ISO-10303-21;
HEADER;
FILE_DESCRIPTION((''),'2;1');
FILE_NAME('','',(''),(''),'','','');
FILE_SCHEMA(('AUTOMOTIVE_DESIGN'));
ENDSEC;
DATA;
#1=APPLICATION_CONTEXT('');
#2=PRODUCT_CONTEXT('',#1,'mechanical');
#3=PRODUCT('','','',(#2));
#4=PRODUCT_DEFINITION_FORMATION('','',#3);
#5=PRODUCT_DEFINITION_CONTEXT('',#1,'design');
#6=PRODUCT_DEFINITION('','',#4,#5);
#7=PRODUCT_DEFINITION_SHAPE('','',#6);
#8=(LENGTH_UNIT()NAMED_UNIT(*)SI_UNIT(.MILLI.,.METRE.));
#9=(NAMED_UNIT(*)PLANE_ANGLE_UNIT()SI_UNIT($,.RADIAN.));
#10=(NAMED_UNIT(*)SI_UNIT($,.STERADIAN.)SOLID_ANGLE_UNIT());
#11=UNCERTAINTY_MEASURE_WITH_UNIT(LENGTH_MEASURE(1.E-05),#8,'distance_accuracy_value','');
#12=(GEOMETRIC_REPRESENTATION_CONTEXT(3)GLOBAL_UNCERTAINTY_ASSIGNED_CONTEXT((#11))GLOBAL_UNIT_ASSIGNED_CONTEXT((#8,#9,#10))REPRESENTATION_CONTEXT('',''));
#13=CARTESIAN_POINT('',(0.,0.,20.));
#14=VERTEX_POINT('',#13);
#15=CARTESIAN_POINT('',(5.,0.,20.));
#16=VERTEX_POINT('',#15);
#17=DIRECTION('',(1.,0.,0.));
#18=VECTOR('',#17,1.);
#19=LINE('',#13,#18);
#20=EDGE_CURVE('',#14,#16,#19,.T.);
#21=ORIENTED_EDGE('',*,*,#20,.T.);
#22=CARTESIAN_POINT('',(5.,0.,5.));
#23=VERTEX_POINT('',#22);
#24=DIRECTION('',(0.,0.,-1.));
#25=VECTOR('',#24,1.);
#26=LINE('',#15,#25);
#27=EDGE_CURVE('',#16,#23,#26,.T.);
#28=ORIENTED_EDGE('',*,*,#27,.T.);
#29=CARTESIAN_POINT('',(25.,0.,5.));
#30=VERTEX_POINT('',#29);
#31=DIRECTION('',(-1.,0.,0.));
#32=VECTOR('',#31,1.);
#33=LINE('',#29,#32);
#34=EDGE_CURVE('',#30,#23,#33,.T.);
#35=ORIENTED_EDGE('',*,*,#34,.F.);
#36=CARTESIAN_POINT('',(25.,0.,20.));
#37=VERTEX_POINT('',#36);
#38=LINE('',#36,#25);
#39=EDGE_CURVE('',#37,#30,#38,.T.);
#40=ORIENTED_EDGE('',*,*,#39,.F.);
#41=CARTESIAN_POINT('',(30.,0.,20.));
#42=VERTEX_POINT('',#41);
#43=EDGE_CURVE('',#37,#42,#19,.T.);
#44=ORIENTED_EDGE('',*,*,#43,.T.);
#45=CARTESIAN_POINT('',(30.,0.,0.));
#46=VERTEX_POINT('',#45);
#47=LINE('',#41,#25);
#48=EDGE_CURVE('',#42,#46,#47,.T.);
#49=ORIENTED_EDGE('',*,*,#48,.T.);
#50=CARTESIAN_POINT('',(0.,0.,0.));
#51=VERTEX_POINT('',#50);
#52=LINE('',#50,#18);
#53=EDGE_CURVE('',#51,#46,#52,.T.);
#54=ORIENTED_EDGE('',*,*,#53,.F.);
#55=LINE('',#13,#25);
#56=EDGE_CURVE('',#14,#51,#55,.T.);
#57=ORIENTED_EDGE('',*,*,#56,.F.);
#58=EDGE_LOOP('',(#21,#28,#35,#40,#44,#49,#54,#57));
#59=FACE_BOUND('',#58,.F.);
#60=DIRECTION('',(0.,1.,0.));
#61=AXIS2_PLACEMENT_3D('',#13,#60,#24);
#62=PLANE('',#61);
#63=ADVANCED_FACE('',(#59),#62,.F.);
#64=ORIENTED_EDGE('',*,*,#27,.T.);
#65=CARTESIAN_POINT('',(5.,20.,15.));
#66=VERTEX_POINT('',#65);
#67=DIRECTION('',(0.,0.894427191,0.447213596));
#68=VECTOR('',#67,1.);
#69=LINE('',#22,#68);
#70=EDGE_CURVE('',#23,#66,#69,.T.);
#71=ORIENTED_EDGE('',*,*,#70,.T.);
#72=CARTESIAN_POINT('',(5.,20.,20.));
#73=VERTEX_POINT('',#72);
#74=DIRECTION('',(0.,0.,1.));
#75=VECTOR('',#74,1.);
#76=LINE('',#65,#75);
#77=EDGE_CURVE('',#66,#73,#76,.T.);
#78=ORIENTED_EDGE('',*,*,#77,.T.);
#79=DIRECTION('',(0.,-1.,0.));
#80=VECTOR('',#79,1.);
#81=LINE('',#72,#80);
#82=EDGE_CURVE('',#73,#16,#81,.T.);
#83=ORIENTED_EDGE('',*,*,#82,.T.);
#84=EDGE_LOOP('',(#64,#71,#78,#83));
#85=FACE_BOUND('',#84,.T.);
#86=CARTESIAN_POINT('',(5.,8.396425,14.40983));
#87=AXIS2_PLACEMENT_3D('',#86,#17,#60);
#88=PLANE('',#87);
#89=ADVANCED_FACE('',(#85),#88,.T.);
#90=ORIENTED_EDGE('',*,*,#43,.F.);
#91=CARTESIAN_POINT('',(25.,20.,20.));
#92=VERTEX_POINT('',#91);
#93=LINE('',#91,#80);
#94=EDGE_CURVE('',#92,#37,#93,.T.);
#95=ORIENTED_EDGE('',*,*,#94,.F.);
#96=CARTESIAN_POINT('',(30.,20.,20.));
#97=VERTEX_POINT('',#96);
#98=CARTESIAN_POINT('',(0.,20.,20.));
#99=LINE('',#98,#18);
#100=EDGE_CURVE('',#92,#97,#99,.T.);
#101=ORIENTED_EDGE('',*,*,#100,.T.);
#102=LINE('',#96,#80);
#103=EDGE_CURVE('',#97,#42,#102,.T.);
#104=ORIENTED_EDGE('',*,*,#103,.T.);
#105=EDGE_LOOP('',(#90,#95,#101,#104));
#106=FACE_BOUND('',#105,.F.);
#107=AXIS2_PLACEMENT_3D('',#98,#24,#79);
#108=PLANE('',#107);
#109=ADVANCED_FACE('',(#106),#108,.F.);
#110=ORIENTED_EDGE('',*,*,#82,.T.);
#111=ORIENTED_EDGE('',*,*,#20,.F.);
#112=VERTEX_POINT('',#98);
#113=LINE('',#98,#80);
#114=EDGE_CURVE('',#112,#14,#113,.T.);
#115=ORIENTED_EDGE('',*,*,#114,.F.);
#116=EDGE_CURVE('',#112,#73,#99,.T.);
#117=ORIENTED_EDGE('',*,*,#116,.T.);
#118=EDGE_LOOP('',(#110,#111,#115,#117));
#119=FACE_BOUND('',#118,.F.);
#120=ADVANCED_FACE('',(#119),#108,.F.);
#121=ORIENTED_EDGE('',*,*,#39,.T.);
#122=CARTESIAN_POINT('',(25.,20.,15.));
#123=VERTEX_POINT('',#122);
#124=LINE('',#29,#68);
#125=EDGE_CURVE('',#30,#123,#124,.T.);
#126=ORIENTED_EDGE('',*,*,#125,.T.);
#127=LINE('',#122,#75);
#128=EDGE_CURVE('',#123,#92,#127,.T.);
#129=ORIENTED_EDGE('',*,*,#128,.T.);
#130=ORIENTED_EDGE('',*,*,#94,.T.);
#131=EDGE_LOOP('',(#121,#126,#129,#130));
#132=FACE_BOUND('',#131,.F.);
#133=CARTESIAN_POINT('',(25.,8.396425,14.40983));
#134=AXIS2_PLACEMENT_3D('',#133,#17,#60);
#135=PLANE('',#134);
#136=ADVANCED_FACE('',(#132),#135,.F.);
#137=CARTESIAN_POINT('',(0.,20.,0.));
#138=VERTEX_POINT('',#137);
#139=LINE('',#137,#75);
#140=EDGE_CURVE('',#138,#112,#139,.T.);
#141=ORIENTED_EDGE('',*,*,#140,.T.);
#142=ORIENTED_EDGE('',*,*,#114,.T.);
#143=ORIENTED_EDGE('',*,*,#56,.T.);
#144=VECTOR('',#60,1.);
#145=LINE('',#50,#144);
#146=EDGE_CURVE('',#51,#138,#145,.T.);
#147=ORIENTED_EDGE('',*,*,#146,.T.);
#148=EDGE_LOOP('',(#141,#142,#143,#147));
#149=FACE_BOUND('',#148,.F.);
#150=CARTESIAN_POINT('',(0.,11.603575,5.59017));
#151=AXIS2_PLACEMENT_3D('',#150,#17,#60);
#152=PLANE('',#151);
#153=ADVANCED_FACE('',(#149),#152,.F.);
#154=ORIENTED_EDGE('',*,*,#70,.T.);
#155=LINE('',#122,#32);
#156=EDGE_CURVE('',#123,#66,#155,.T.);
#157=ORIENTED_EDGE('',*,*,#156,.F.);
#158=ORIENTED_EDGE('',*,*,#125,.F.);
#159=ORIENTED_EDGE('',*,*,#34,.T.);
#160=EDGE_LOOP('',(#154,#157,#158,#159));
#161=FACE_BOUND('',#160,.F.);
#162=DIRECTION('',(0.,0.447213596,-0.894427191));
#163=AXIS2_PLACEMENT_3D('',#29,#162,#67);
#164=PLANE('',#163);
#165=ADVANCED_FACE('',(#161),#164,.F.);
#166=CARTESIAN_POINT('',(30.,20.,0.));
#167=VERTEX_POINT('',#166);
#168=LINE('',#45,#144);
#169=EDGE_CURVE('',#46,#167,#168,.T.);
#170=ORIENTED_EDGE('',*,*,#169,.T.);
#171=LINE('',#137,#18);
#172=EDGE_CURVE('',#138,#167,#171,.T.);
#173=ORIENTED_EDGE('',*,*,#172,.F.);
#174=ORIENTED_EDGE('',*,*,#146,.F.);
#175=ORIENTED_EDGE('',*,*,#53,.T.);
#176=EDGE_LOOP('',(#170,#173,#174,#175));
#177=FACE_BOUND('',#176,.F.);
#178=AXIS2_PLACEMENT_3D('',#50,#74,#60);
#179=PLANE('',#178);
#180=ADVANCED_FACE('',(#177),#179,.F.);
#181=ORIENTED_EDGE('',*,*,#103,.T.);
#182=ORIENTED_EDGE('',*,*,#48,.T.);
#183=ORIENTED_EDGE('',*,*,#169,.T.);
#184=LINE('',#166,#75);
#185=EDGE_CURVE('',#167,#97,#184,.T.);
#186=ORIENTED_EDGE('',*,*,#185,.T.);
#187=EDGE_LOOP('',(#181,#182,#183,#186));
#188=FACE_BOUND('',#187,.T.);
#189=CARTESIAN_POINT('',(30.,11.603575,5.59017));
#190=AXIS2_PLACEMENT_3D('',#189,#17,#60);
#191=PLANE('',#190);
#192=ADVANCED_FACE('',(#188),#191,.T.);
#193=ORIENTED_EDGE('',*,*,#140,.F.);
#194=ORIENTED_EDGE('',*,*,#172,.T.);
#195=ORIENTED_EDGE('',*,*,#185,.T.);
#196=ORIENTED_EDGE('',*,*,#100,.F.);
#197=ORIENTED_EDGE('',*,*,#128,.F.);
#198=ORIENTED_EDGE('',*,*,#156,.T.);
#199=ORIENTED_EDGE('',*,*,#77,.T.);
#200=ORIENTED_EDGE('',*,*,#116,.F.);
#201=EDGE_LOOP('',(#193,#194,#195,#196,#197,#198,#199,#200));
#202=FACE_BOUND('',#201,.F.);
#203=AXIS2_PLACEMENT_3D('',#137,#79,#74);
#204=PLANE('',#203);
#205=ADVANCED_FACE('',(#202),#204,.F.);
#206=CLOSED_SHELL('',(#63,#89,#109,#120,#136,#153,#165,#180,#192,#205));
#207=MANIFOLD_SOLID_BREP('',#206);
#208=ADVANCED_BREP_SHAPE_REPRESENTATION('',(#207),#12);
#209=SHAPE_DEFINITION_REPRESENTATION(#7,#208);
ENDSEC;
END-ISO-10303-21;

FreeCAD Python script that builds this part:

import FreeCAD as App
import Part
import Sketcher
Q = App.Units.Quantity

doc = App.newDocument("Part")
params = doc.addObject("Spreadsheet::Sheet", "Params")
for row, (alias, value) in enumerate([
    ("sketch1_width", "20 mm"),
    ("pad1_length", "30 mm"),
    ("sketch2_width", "20 mm"),
    ("sketch2_height", "5 mm"),
    ("sketch2_height2", "15 mm"),
    ("pocket1_length", "20 mm"),
], start=1):
    params.set(f"A{row}", alias)
    params.set(f"B{row}", "=" + value)
    params.setAlias(f"B{row}", alias)

body = doc.addObject("PartDesign::Body", "Body")

# Sketch on YZ plane
sketch1 = body.newObject("Sketcher::SketchObject", "Sketch")
sketch1.AttachmentSupport = (doc.getObject("YZ_Plane"), [""])
sketch1.MapMode = "FlatFace"
sketch1.addGeometry([
    Part.LineSegment(App.Vector(0, 0, 0), App.Vector(20, 0, 0)),
    Part.LineSegment(App.Vector(20, 0, 0), App.Vector(20, 20, 0)),
    Part.LineSegment(App.Vector(20, 20, 0), App.Vector(0, 20, 0)),
    Part.LineSegment(App.Vector(0, 20, 0), App.Vector(0, 0, 0)),
], False)
sketch1.addConstraint([
    Sketcher.Constraint("Coincident", 0, 2, 1, 1),
    Sketcher.Constraint("Coincident", 1, 2, 2, 1),
    Sketcher.Constraint("Coincident", 2, 2, 3, 1),
    Sketcher.Constraint("Coincident", 3, 2, 0, 1),
    Sketcher.Constraint("Horizontal", 0),
    Sketcher.Constraint("Vertical", 1),
    Sketcher.Constraint("Horizontal", 2),
    Sketcher.Constraint("Vertical", 3),
    Sketcher.Constraint("Coincident", 3, 2, -1, 1),
    Sketcher.Constraint("Equal", 2, 1),
    Sketcher.Constraint("DistanceX", 0, 1, 0, 2, Q("20 mm")),
])
sketch1.setExpression("Constraints[10]", "Params.sketch1_width")
pad1 = body.newObject("PartDesign::Pad", "Pad")
pad1.Profile = sketch1
pad1.setExpression("Length", "Params.pad1_length")

# Sketch on YZ plane
sketch2 = body.newObject("Sketcher::SketchObject", "Sketch001")
sketch2.AttachmentSupport = (doc.getObject("YZ_Plane"), [""])
sketch2.MapMode = "FlatFace"
sketch2.AttachmentOffset = App.Placement(App.Vector(0, 0, 25), App.Rotation())
sketch2.addGeometry([
    Part.LineSegment(App.Vector(0, 5, 0), App.Vector(20, 15, 0)),
    Part.LineSegment(App.Vector(20, 15, 0), App.Vector(20, 20, 0)),
    Part.LineSegment(App.Vector(20, 20, 0), App.Vector(0, 20, 0)),
    Part.LineSegment(App.Vector(0, 20, 0), App.Vector(0, 5, 0)),
], False)
sketch2.addConstraint([
    Sketcher.Constraint("Coincident", 0, 2, 1, 1),
    Sketcher.Constraint("Coincident", 1, 2, 2, 1),
    Sketcher.Constraint("Coincident", 2, 2, 3, 1),
    Sketcher.Constraint("Coincident", 3, 2, 0, 1),
    Sketcher.Constraint("Vertical", 1),
    Sketcher.Constraint("Horizontal", 2),
    Sketcher.Constraint("Vertical", 3),
    Sketcher.Constraint("PointOnObject", 2, 2, -2),
    Sketcher.Constraint("DistanceX", 2, 2, 2, 1, Q("20 mm")),
    Sketcher.Constraint("DistanceY", 1, 1, 1, 2, Q("5 mm")),
    Sketcher.Constraint("DistanceY", 3, 2, 3, 1, Q("15 mm")),
    Sketcher.Constraint("DistanceY", -1, 1, 0, 2, Q("15 mm")),
])
sketch2.setExpression("Constraints[8]", "Params.sketch2_width")
sketch2.setExpression("Constraints[9]", "Params.sketch2_height")
sketch2.setExpression("Constraints[10]", "Params.sketch2_height2")
pocket1 = body.newObject("PartDesign::Pocket", "Pocket")
pocket1.Profile = sketch2
pocket1.setExpression("Length", "Params.pocket1_length")

doc.recompute()
